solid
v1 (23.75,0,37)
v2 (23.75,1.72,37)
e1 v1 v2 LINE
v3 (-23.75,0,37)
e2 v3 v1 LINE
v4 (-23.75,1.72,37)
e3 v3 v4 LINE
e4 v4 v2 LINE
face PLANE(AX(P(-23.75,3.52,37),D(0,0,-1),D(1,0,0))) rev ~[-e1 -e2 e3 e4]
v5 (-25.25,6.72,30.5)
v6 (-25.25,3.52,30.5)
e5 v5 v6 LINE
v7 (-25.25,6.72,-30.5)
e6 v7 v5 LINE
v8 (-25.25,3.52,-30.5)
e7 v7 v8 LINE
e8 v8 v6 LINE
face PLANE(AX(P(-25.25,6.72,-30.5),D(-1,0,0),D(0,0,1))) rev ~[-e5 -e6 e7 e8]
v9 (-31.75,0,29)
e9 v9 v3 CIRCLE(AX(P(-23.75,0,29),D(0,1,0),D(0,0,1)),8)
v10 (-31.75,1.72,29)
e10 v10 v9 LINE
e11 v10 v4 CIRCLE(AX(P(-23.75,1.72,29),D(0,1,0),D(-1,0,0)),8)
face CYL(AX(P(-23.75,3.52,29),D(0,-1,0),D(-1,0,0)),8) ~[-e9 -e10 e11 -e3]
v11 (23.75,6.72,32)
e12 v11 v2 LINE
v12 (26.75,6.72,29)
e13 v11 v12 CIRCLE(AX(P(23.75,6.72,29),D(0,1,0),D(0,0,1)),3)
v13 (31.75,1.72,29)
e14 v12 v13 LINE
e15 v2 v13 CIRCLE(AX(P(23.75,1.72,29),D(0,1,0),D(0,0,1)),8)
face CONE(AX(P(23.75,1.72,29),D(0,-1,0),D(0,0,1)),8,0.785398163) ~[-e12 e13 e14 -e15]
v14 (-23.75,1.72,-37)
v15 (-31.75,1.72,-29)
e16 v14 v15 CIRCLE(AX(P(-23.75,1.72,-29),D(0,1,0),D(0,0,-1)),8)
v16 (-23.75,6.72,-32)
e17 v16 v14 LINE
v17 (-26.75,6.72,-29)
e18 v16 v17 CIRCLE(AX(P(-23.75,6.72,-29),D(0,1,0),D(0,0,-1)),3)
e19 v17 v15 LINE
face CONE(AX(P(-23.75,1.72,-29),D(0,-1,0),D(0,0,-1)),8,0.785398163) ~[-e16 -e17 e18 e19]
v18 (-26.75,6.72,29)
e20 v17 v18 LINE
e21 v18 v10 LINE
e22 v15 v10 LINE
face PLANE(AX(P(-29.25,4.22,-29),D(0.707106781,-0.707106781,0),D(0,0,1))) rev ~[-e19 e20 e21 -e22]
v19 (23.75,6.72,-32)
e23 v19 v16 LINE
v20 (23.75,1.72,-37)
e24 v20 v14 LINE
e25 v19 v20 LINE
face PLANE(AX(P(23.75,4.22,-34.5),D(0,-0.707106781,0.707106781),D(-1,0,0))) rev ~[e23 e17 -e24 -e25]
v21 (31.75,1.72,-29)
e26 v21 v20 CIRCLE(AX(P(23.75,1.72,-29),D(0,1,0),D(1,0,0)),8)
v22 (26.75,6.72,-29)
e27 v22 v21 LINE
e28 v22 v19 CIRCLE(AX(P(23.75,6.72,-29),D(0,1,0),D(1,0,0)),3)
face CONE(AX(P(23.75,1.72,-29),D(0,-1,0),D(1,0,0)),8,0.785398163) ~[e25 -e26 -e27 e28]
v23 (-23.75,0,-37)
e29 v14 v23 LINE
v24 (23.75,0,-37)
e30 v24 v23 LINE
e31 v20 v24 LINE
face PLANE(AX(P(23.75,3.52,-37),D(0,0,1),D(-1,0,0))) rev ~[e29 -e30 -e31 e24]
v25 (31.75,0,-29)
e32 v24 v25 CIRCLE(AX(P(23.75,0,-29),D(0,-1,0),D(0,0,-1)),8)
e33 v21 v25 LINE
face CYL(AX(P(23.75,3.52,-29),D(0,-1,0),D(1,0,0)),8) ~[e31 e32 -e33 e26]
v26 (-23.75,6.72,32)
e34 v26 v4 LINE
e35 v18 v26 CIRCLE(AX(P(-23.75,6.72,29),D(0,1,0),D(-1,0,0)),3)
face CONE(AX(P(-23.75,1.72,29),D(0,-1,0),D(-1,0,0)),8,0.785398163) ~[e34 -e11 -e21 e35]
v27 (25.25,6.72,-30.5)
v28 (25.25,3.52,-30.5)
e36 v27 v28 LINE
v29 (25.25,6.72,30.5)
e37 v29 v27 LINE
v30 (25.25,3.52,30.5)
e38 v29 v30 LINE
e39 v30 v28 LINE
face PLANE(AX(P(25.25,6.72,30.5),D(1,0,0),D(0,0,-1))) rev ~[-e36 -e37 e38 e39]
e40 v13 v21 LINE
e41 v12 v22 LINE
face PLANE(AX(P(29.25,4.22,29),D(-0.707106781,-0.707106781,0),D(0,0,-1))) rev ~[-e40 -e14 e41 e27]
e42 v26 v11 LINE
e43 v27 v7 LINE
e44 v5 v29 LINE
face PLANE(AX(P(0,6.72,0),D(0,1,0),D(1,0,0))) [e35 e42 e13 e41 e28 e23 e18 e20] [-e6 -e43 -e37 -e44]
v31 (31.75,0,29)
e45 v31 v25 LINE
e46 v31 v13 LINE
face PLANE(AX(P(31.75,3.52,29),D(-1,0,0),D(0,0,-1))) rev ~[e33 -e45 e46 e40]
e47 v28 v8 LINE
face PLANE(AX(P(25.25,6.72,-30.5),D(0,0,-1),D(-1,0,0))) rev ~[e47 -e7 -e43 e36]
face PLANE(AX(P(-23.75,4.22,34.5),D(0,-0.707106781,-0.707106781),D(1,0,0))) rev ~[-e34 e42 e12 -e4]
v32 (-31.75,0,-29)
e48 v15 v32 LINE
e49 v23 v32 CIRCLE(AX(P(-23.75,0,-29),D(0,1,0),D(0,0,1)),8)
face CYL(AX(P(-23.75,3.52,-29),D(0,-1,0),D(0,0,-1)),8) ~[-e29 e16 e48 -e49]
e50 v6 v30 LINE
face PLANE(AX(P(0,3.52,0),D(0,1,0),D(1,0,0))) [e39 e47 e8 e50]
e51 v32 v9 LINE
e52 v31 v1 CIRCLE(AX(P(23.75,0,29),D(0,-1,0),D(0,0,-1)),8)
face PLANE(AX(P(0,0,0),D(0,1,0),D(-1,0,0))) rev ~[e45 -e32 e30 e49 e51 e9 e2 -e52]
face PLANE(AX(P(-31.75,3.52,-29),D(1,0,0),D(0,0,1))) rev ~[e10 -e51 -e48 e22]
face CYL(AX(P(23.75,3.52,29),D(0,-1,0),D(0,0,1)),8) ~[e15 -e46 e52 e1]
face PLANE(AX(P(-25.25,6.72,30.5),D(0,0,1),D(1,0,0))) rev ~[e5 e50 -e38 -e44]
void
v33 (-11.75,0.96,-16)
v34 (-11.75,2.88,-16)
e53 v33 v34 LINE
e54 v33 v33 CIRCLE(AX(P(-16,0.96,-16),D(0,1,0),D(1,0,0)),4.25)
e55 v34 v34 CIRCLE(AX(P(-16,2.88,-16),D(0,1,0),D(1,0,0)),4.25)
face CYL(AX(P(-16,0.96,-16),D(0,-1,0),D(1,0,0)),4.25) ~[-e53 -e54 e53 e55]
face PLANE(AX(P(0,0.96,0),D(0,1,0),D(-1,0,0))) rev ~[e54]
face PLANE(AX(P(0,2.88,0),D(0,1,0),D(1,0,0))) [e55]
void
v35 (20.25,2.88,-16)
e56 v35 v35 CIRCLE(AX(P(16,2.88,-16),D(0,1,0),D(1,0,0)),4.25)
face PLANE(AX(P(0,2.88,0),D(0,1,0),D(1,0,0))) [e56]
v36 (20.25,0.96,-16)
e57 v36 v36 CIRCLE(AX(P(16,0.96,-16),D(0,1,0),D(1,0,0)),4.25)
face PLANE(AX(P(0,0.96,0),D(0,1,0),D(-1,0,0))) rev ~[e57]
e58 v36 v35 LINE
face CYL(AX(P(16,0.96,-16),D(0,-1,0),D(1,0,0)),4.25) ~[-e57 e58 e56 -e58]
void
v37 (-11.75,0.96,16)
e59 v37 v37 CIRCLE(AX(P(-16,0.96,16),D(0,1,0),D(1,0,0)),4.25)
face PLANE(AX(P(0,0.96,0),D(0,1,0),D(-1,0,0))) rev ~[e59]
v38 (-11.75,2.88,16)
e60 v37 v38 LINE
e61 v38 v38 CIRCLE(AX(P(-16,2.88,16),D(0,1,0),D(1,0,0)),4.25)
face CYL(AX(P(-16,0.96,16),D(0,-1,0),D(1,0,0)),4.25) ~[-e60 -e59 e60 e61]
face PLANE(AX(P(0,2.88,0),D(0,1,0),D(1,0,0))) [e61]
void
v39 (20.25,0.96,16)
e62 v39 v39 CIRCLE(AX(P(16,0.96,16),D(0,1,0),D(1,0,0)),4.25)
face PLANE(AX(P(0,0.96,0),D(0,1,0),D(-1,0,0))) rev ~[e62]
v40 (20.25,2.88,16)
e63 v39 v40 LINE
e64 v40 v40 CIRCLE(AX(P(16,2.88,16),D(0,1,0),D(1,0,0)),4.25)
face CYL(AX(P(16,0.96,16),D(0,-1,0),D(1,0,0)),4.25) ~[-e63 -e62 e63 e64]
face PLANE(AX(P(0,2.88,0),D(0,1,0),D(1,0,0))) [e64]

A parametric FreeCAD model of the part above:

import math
import FreeCAD as App
import Part
import Sketcher
Q = App.Units.Quantity


def edges_at(feature, points):
    """Names of the edges that pass closest to the given points."""
    edges = feature.Shape.Edges
    near = lambda p: min(range(len(edges)), key=lambda i: edges[i].distToShape(Part.Vertex(*p))[0])
    return sorted({f"Edge{near(p) + 1}" for p in points})


def add_polygon(sketch, points):
    """Adds a closed chain of lines whose ends are joined by coincident constraints."""
    first, n = sketch.GeometryCount, len(points)
    for a, b in zip(points, points[1:] + points[:1]):
        sketch.addGeometry(Part.LineSegment(App.Vector(*a, 0), App.Vector(*b, 0)), False)
    for i in range(n):
        sketch.addConstraint(Sketcher.Constraint("Coincident", first + i, 2, first + (i + 1) % n, 1))

doc = App.newDocument("Part")
params = doc.addObject("Spreadsheet::Sheet", "Params")
for row, (alias, value) in enumerate([
    ("sketch1_height", "74 mm"),
    ("sketch1_width", "63.5 mm"),
    ("pad1_length", "0.96 mm"),
    ("sketch2_diameter", "8.5 mm"),
    ("sketch2_height", "74 mm"),
    ("sketch2_width", "63.5 mm"),
    ("pad2_length", "1.92 mm"),
    ("sketch3_height", "74 mm"),
    ("sketch3_width", "63.5 mm"),
    ("pad3_length", "0.64 mm"),
    ("fillet_radius", "8 mm"),
    ("sketch4_radius", "8 mm"),
    ("sketch4_height", "58 mm"),
    ("sketch4_width", "47.5 mm"),
    ("pad4_length", "3.2 mm"),
    ("sketch5_height", "61 mm"),
    ("sketch5_width", "50.5 mm"),
    ("pocket1_length", "3.2 mm"),
    ("chamfer_size", "5 mm"),
], start=1):
    params.set(f"A{row}", alias)
    params.set(f"B{row}", "=" + value)
    params.setAlias(f"B{row}", alias)

body = doc.addObject("PartDesign::Body", "Body")

# Sketch on XZ plane
sketch1 = body.newObject("Sketcher::SketchObject", "Sketch")
sketch1.AttachmentSupport = (doc.getObject("XZ_Plane"), [""])
sketch1.MapMode = "FlatFace"
add_polygon(sketch1, [(-32, -37), (-32, 37), (32, 37), (32, -37)])  # lines 0-3
sketch1.addConstraint([
    Sketcher.Constraint("Vertical", 0),
    Sketcher.Constraint("Horizontal", 1),
    Sketcher.Constraint("Vertical", 2),
    Sketcher.Constraint("Horizontal", 3),
    Sketcher.Constraint("Symmetric", 0, 2, 2, 2, -1, 1),
    Sketcher.Constraint("DistanceY", 0, 1, 0, 2, Q("74 mm")),
    Sketcher.Constraint("DistanceX", 1, 1, 1, 2, Q("63.5 mm")),
])
sketch1.setExpression("Constraints[9]", "Params.sketch1_height")
sketch1.setExpression("Constraints[10]", "Params.sketch1_width")
pad1 = body.newObject("PartDesign::Pad", "Pad")
pad1.Profile = sketch1
pad1.setExpression("Length", "Params.pad1_length")
pad1.Reversed = True

# Sketch on XZ plane
sketch2 = body.newObject("Sketcher::SketchObject", "Sketch001")
sketch2.AttachmentSupport = (doc.getObject("XZ_Plane"), [""])
sketch2.MapMode = "FlatFace"
sketch2.AttachmentOffset = App.Placement(App.Vector(0, 0, -0.96), App.Rotation())
add_polygon(sketch2, [(31.8, 37), (31.8, -37), (-31.8, -37), (-31.8, 37)])  # lines 0-3
sketch2.addGeometry(Part.Circle(App.Vector(16, 16, 0), App.Vector(0, 0, 1), 4.2), False)  # 4
sketch2.addGeometry(Part.Circle(App.Vector(-16, 16, 0), App.Vector(0, 0, 1), 4.2), False)  # 5
sketch2.addGeometry(Part.Circle(App.Vector(16, -16, 0), App.Vector(0, 0, 1), 4.2), False)  # 6
sketch2.addGeometry(Part.Circle(App.Vector(-16, -16, 0), App.Vector(0, 0, 1), 4.2), False)  # 7
sketch2.addConstraint([
    Sketcher.Constraint("Vertical", 0),
    Sketcher.Constraint("Horizontal", 1),
    Sketcher.Constraint("Vertical", 2),
    Sketcher.Constraint("Horizontal", 3),
    Sketcher.Constraint("Equal", 4, 5),
    Sketcher.Constraint("Equal", 5, 6),
    Sketcher.Constraint("Equal", 6, 7),
    Sketcher.Constraint("Symmetric", 5, 3, 6, 3, -1, 1),
    Sketcher.Constraint("Symmetric", 4, 3, 7, 3, -1, 1),
    Sketcher.Constraint("Symmetric", 0, 2, 2, 2, -1, 1),
    Sketcher.Constraint("Symmetric", 4, 3, 5, 3, -2),
    Sketcher.Constraint("Diameter", 4, Q("8.5 mm")),
    Sketcher.Constraint("DistanceX", 5, 3, 4, 3, Q("32 mm")),
    Sketcher.Constraint("DistanceY", 6, 3, 4, 3, Q("32 mm")),
    Sketcher.Constraint("DistanceY", 0, 2, 0, 1, Q("74 mm")),
    Sketcher.Constraint("DistanceX", 1, 2, 1, 1, Q("63.5 mm")),
])
sketch2.setExpression("Constraints[15]", "Params.sketch2_diameter")
sketch2.setExpression("Constraints[18]", "Params.sketch2_height")
sketch2.setExpression("Constraints[19]", "Params.sketch2_width")
pad2 = body.newObject("PartDesign::Pad", "Pad001")
pad2.Profile = sketch2
pad2.setExpression("Length", "Params.pad2_length")
pad2.Reversed = True

# Sketch on XZ plane
sketch3 = body.newObject("Sketcher::SketchObject", "Sketch002")
sketch3.AttachmentSupport = (doc.getObject("XZ_Plane"), [""])
sketch3.MapMode = "FlatFace"
sketch3.AttachmentOffset = App.Placement(App.Vector(0, 0, -2.88), App.Rotation())
add_polygon(sketch3, [(32, -37), (-32, -37), (-32, 37), (32, 37)])  # lines 0-3
sketch3.addConstraint([
    Sketcher.Constraint("Horizontal", 0),
    Sketcher.Constraint("Vertical", 1),
    Sketcher.Constraint("Horizontal", 2),
    Sketcher.Constraint("Vertical", 3),
    Sketcher.Constraint("Symmetric", 0, 2, 2, 2, -1, 1),
    Sketcher.Constraint("DistanceY", 1, 1, 1, 2, Q("74 mm")),
    Sketcher.Constraint("DistanceX", 0, 2, 0, 1, Q("63.5 mm")),
])
sketch3.setExpression("Constraints[9]", "Params.sketch3_height")
sketch3.setExpression("Constraints[10]", "Params.sketch3_width")
pad3 = body.newObject("PartDesign::Pad", "Pad002")
pad3.Profile = sketch3
pad3.setExpression("Length", "Params.pad3_length")
pad3.Reversed = True
doc.recompute()

fillet = body.newObject("PartDesign::Fillet", "Fillet")
fillet.Base = (pad3, edges_at(pad3, [
    (31.75, 1.76, 37),
    (-31.75, 1.76, 37),
    (-31.75, 1.76, -37),
    (31.75, 1.76, -37),
]))
fillet.setExpression("Radius", "Params.fillet_radius")

# Sketch on XZ plane
sketch4 = body.newObject("Sketcher::SketchObject", "Sketch003")
sketch4.AttachmentSupport = (doc.getObject("XZ_Plane"), [""])
sketch4.MapMode = "FlatFace"
sketch4.AttachmentOffset = App.Placement(App.Vector(0, 0, -3.52), App.Rotation())
sketch4.addGeometry([
    Part.ArcOfCircle(Part.Circle(App.Vector(-24, 29, 0), App.Vector(0, 0, 1), 8), math.radians(90), math.radians(180)),  # 0
    Part.LineSegment(App.Vector(-24, 37, 0), App.Vector(24, 37, 0)),  # 1
    Part.ArcOfCircle(Part.Circle(App.Vector(24, 29, 0), App.Vector(0, 0, 1), 8), math.radians(0), math.radians(90)),  # 2
    Part.LineSegment(App.Vector(32, 29, 0), App.Vector(32, -29, 0)),  # 3
    Part.ArcOfCircle(Part.Circle(App.Vector(24, -29, 0), App.Vector(0, 0, 1), 8), math.radians(-90), math.radians(0)),  # 4
    Part.LineSegment(App.Vector(24, -37, 0), App.Vector(-24, -37, 0)),  # 5
    Part.ArcOfCircle(Part.Circle(App.Vector(-24, -29, 0), App.Vector(0, 0, 1), 8), math.radians(180), math.radians(270)),  # 6
    Part.LineSegment(App.Vector(-32, -29, 0), App.Vector(-32, 29, 0)),  # 7
], False)
sketch4.addConstraint([
    Sketcher.Constraint("Tangent", 0, 1, 1, 1),
    Sketcher.Constraint("Tangent", 1, 2, 2, 2),
    Sketcher.Constraint("Tangent", 2, 1, 3, 1),
    Sketcher.Constraint("Tangent", 3, 2, 4, 2),
    Sketcher.Constraint("Tangent", 4, 1, 5, 1),
    Sketcher.Constraint("Tangent", 5, 2, 6, 2),
    Sketcher.Constraint("Tangent", 6, 1, 7, 1),
    Sketcher.Constraint("Tangent", 7, 2, 0, 2),
    Sketcher.Constraint("Horizontal", 1),
    Sketcher.Constraint("Vertical", 3),
    Sketcher.Constraint("Horizontal", 5),
    Sketcher.Constraint("Vertical", 7),
    Sketcher.Constraint("Equal", 0, 2),
    Sketcher.Constraint("Equal", 2, 4),
    Sketcher.Constraint("Equal", 4, 6),
    Sketcher.Constraint("Symmetric", 0, 3, 4, 3, -1, 1),
    Sketcher.Constraint("Radius", 0, Q("8 mm")),
    Sketcher.Constraint("DistanceY", 3, 2, 3, 1, Q("58 mm")),
    Sketcher.Constraint("DistanceX", 1, 1, 1, 2, Q("47.5 mm")),
])
sketch4.setExpression("Constraints[16]", "Params.sketch4_radius")
sketch4.setExpression("Constraints[17]", "Params.sketch4_height")
sketch4.setExpression("Constraints[18]", "Params.sketch4_width")
pad4 = body.newObject("PartDesign::Pad", "Pad003")
pad4.Profile = sketch4
pad4.setExpression("Length", "Params.pad4_length")
pad4.Reversed = True

# Sketch on XZ plane
sketch5 = body.newObject("Sketcher::SketchObject", "Sketch004")
sketch5.AttachmentSupport = (doc.getObject("XZ_Plane"), [""])
sketch5.MapMode = "FlatFace"
sketch5.AttachmentOffset = App.Placement(App.Vector(0, 0, -6.72), App.Rotation())
add_polygon(sketch5, [(25, 30), (25, -30), (-25, -30), (-25, 30)])  # lines 0-3
sketch5.addConstraint([
    Sketcher.Constraint("Vertical", 0),
    Sketcher.Constraint("Horizontal", 1),
    Sketcher.Constraint("Vertical", 2),
    Sketcher.Constraint("Horizontal", 3),
    Sketcher.Constraint("Symmetric", 0, 2, 2, 2, -1, 1),
    Sketcher.Constraint("DistanceY", 0, 2, 0, 1, Q("61 mm")),
    Sketcher.Constraint("DistanceX", 1, 2, 1, 1, Q("50.5 mm")),
])
sketch5.setExpression("Constraints[9]", "Params.sketch5_height")
sketch5.setExpression("Constraints[10]", "Params.sketch5_width")
pocket1 = body.newObject("PartDesign::Pocket", "Pocket")
pocket1.Profile = sketch5
pocket1.setExpression("Length", "Params.pocket1_length")
pocket1.Reversed = True
doc.recompute()

chamfer = body.newObject("PartDesign::Chamfer", "Chamfer")
chamfer.Base = (pocket1, edges_at(pocket1, [
    (31.75, 6.72, 0),
    (29.407, 6.72, -34.657),
    (0, 6.72, -37),
    (-29.407, 6.72, -34.657),
    (-31.75, 6.72, 0),
    (-29.407, 6.72, 34.657),
    (0, 6.72, 37),
    (29.407, 6.72, 34.657),
]))
chamfer.setExpression("Size", "Params.chamfer_size")

doc.recompute()
